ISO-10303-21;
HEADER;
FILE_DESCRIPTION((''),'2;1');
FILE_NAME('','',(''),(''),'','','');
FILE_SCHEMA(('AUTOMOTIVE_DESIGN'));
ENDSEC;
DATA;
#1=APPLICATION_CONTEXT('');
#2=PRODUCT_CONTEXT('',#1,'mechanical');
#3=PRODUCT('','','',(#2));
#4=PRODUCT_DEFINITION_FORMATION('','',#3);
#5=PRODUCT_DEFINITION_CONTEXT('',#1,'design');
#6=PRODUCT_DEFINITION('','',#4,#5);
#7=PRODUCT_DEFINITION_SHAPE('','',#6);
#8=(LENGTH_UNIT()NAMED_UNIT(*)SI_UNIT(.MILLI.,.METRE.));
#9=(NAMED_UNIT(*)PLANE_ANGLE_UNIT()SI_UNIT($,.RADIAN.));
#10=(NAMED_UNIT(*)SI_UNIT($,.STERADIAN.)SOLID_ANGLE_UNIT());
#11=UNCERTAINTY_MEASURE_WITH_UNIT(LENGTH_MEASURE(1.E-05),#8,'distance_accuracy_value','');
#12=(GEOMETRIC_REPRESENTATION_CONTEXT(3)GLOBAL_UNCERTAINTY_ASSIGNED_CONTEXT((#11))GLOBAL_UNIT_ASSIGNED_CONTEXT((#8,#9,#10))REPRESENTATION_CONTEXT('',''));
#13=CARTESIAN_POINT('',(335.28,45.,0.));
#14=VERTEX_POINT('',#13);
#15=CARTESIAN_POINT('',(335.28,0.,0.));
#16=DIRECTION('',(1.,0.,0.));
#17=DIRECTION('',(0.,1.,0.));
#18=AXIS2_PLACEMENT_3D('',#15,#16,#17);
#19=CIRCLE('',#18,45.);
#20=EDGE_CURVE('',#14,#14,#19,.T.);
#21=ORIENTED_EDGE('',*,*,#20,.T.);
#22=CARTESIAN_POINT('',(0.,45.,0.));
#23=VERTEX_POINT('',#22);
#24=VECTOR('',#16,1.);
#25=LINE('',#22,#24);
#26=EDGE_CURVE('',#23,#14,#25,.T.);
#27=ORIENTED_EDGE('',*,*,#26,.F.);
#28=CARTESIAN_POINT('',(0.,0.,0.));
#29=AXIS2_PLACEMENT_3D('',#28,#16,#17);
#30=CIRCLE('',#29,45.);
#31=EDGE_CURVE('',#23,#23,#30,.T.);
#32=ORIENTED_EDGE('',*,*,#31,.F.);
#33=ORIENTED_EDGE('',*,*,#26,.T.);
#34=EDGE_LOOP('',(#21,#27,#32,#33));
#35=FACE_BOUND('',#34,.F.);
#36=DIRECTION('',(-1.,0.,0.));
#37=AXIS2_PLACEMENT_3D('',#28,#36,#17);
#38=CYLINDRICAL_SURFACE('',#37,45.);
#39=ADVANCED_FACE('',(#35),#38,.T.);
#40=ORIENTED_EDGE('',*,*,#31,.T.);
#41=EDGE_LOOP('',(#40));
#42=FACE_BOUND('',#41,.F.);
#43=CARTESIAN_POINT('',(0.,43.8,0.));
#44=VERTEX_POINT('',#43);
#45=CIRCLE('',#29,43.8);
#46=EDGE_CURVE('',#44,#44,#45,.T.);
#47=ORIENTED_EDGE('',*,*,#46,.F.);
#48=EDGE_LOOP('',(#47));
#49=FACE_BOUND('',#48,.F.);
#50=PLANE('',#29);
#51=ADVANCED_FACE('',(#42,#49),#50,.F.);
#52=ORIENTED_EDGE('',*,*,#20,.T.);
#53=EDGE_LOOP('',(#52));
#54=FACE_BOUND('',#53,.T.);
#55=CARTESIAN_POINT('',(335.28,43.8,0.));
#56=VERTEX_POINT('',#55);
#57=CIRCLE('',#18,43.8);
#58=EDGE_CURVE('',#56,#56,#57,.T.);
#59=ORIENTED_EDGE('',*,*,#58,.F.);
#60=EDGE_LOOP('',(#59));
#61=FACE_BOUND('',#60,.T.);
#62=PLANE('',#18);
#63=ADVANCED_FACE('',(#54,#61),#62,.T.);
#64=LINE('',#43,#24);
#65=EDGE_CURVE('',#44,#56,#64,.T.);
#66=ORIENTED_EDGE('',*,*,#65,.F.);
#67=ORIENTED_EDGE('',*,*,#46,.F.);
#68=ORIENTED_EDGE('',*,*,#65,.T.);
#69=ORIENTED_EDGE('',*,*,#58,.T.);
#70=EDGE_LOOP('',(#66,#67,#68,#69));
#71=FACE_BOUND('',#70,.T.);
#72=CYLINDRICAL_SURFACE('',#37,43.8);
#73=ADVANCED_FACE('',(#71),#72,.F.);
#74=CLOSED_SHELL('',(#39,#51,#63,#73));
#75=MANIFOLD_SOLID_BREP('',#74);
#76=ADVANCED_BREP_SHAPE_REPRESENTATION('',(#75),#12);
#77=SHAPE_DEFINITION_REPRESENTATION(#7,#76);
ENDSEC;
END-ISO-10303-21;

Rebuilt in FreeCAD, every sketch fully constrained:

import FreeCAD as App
import Part
import Sketcher
Q = App.Units.Quantity

doc = App.newDocument("Part")
body = doc.addObject("PartDesign::Body", "Body")

# Sketch on YZ plane
sketch1 = doc.addObject("Sketcher::SketchObject", "Sketch")
body.addObject(sketch1)
sketch1.AttachmentSupport = (doc.YZ_Plane, [""])
sketch1.MapMode = "FlatFace"
sketch1.addGeometry(Part.Circle(App.Vector(0, 0, 0), App.Vector(0, 0, 1), 45), False)
sketch1.addGeometry(Part.Circle(App.Vector(0, 0, 0), App.Vector(0, 0, 1), 43.8), False)
sketch1.addConstraint(Sketcher.Constraint("Coincident", 0, 3, -1, 1))
sketch1.addConstraint(Sketcher.Constraint("Coincident", 1, 3, -1, 1))
sketch1.addConstraint(Sketcher.Constraint("Diameter", 0, Q("90 mm")))
sketch1.addConstraint(Sketcher.Constraint("Diameter", 1, Q("87.6 mm")))
pad1 = doc.addObject("PartDesign::Pad", "Pad")
body.addObject(pad1)
pad1.Profile = sketch1
pad1.Length = 335.28

doc.recompute()
